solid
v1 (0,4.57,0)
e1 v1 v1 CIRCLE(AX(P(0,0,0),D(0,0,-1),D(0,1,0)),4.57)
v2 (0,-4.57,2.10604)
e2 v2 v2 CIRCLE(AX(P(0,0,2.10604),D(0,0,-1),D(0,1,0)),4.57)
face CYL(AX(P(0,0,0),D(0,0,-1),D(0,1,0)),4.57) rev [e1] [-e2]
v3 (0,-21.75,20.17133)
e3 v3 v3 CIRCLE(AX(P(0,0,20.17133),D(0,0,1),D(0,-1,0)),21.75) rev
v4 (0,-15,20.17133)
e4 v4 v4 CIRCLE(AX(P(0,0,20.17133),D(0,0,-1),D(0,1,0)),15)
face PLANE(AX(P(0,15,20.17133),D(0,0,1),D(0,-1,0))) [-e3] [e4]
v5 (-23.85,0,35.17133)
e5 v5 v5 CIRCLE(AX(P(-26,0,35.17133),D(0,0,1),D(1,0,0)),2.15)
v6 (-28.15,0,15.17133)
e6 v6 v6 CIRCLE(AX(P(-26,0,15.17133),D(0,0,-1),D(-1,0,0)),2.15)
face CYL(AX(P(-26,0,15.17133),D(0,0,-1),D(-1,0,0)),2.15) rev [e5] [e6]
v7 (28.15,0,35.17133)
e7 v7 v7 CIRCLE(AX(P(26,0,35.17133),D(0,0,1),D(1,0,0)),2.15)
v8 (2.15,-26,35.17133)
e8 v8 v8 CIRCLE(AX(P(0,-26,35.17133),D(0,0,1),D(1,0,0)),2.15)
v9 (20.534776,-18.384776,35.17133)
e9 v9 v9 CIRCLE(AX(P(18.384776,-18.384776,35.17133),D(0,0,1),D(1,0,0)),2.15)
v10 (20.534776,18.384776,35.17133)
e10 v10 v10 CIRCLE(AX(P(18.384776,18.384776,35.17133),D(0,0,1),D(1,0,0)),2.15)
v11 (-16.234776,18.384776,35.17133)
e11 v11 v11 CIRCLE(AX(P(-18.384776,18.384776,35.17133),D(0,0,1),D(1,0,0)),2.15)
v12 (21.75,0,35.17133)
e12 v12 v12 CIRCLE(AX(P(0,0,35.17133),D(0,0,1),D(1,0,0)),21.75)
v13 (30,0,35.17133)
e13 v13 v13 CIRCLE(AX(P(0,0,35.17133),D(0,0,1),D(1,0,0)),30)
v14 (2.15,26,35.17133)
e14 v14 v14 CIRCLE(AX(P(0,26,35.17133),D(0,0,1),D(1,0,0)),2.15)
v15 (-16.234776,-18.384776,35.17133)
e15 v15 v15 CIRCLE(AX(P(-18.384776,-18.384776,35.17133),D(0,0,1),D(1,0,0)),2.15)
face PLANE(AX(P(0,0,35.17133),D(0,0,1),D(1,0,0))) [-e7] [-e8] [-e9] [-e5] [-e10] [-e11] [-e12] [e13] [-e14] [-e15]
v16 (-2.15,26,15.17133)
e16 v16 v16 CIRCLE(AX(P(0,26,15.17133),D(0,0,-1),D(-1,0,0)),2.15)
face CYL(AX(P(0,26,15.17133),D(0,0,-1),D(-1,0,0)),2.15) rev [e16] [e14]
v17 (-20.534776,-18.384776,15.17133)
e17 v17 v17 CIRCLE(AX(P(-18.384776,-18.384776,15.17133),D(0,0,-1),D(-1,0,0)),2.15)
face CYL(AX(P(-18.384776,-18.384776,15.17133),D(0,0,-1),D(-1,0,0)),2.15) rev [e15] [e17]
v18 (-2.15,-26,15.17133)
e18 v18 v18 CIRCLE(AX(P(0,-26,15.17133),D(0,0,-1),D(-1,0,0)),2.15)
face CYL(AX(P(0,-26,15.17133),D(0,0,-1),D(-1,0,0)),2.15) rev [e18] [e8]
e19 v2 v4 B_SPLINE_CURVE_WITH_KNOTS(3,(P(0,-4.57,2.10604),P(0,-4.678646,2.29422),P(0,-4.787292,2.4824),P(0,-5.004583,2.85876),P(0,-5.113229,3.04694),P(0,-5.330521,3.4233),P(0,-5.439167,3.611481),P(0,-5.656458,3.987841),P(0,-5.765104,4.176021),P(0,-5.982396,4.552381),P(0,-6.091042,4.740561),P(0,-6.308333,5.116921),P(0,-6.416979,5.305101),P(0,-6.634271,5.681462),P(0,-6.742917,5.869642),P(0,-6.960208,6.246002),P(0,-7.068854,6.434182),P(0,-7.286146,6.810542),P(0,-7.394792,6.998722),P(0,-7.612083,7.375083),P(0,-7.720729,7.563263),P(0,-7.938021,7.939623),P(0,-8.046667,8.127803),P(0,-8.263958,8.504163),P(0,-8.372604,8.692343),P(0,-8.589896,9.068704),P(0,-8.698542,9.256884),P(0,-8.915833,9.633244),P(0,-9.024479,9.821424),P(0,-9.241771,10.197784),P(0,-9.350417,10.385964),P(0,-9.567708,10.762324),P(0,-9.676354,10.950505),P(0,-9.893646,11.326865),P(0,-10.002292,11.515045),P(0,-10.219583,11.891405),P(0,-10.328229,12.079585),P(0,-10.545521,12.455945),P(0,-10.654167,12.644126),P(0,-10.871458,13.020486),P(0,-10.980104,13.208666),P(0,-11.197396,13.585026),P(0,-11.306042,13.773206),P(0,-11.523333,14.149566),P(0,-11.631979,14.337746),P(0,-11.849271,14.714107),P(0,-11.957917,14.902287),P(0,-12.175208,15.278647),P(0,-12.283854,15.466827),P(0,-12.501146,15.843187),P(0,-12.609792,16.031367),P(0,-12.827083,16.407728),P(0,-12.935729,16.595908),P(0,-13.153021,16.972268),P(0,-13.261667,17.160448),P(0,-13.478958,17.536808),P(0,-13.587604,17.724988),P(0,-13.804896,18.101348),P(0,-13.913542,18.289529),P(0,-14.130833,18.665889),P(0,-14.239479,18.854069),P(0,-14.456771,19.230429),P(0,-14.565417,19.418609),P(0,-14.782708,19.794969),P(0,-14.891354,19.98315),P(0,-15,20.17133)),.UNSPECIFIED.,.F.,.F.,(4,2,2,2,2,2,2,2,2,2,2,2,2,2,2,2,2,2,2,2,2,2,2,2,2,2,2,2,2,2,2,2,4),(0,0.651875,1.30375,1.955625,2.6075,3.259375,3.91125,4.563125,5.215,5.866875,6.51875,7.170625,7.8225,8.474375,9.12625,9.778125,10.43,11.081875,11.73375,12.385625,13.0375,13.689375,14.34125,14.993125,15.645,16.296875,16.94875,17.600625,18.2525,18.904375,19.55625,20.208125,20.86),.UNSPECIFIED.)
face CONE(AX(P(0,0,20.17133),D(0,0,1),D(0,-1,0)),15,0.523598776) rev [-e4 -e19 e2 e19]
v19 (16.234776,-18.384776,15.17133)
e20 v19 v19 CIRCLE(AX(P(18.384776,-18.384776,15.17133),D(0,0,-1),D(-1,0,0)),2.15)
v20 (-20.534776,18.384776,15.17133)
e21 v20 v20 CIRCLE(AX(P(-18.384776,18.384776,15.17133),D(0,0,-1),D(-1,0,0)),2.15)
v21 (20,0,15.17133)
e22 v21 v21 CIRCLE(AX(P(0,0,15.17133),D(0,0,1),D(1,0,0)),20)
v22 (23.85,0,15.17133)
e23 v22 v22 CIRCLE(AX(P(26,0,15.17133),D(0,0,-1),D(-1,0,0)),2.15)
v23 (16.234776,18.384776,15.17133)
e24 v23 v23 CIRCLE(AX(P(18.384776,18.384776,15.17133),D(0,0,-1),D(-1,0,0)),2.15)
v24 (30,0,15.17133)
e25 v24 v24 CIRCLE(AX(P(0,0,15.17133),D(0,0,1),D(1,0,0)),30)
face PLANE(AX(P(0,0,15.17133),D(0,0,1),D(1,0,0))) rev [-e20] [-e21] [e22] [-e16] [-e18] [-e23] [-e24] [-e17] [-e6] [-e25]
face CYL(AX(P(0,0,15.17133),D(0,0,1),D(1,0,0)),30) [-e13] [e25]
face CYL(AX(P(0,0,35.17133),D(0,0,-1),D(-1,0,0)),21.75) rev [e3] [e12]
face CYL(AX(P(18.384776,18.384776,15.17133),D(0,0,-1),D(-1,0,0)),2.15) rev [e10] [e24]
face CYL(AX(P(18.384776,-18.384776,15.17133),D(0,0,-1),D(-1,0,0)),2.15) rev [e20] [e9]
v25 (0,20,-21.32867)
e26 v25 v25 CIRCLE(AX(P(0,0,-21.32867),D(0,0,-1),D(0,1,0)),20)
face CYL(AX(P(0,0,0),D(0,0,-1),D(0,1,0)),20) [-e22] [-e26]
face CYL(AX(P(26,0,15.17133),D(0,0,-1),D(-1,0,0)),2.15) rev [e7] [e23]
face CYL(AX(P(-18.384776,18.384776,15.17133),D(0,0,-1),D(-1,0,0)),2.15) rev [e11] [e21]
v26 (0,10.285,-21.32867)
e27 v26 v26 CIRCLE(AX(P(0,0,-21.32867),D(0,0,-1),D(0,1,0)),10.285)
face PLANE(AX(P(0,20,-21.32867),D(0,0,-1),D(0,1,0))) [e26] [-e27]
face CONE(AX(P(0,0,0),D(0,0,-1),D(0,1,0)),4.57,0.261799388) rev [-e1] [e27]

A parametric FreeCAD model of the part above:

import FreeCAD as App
import Part
import Sketcher

V = App.Vector
Q = App.Units.Quantity


def add_polygon(sketch, points):
    """Adds a closed chain of lines whose ends are joined by coincident constraints."""
    first, n = sketch.GeometryCount, len(points)
    for a, b in zip(points, points[1:] + points[:1]):
        sketch.addGeometry(Part.LineSegment(App.Vector(*a, 0), App.Vector(*b, 0)), False)
    for i in range(n):
        sketch.addConstraint(Sketcher.Constraint("Coincident", first + i, 2, first + (i + 1) % n, 1))

doc = App.newDocument("Part")
body = doc.addObject("PartDesign::Body", "Body")

# Sketch on YZ plane
sketch1 = doc.addObject("Sketcher::SketchObject", "Sketch")
body.addObject(sketch1)
sketch1.AttachmentSupport = (doc.YZ_Plane, [""])
sketch1.MapMode = "FlatFace"
add_polygon(sketch1, [(10.285, -21.32867), (20, -21.32867), (20, 20.17133), (15, 20.17133), (4.57, 2.10604), (4.57, 0)])  # lines 0-5
sketch1.addConstraint(Sketcher.Constraint("Horizontal", 0))
sketch1.addConstraint(Sketcher.Constraint("Vertical", 1))
sketch1.addConstraint(Sketcher.Constraint("Horizontal", 2))
sketch1.addConstraint(Sketcher.Constraint("Vertical", 4))
sketch1.addConstraint(Sketcher.Constraint("PointOnObject", 4, 2, -1))
sketch1.addConstraint(Sketcher.Constraint("DistanceX", 2, 2, 2, 1, Q("5 mm")))
sketch1.addConstraint(Sketcher.Constraint("Angle", 3, Q("-120 deg")))
sketch1.addConstraint(Sketcher.Constraint("Angle", 5, Q("-75 deg")))
sketch1.addConstraint(Sketcher.Constraint("DistanceY", 1, 1, 1, 2, Q("41.5 mm")))
sketch1.addConstraint(Sketcher.Constraint("DistanceX", -1, 1, 0, 2, Q("20 mm")))
sketch1.addConstraint(Sketcher.Constraint("Distance", 3, Q("20.86 mm")))
sketch1.addConstraint(Sketcher.Constraint("DistanceX", 0, 1, 0, 2, Q("9.715 mm")))
revolution = doc.addObject("PartDesign::Revolution", "Revolution")
body.addObject(revolution)
revolution.Profile = sketch1
revolution.ReferenceAxis = (sketch1, ["V_Axis"])
revolution.Angle = 360

# Sketch on XY plane
sketch2 = doc.addObject("Sketcher::SketchObject", "Sketch001")
body.addObject(sketch2)
sketch2.AttachmentSupport = (doc.XY_Plane, [""])
sketch2.MapMode = "FlatFace"
sketch2.AttachmentOffset = App.Placement(V(0, 0, 15.17133), App.Rotation())
sketch2.addGeometry(Part.Circle(V(0, 0, 0), V(0, 0, 1), 30), False)
sketch2.addGeometry(Part.Circle(V(0, 0, 0), V(0, 0, 1), 20), False)
sketch2.addConstraint(Sketcher.Constraint("Coincident", 0, 3, -1, 1))
sketch2.addConstraint(Sketcher.Constraint("Coincident", 1, 3, -1, 1))
sketch2.addConstraint(Sketcher.Constraint("Diameter", 0, Q("60 mm")))
sketch2.addConstraint(Sketcher.Constraint("Diameter", 1, Q("40 mm")))
pad1 = doc.addObject("PartDesign::Pad", "Pad")
body.addObject(pad1)
pad1.Profile = sketch2
pad1.Length = 5

# Sketch on XY plane
sketch3 = doc.addObject("Sketcher::SketchObject", "Sketch002")
body.addObject(sketch3)
sketch3.AttachmentSupport = (doc.XY_Plane, [""])
sketch3.MapMode = "FlatFace"
sketch3.AttachmentOffset = App.Placement(V(0, 0, 20.17133), App.Rotation())
sketch3.addGeometry(Part.Circle(V(0, 0, 0), V(0, 0, 1), 30), False)
sketch3.addGeometry(Part.Circle(V(0, 0, 0), V(0, 0, 1), 21.75), False)
sketch3.addConstraint(Sketcher.Constraint("Coincident", 0, 3, -1, 1))
sketch3.addConstraint(Sketcher.Constraint("Coincident", 1, 3, -1, 1))
sketch3.addConstraint(Sketcher.Constraint("Diameter", 0, Q("60 mm")))
sketch3.addConstraint(Sketcher.Constraint("Diameter", 1, Q("43.5 mm")))
pad2 = doc.addObject("PartDesign::Pad", "Pad001")
body.addObject(pad2)
pad2.Profile = sketch3
pad2.Length = 15

# Sketch on XY plane
sketch4 = doc.addObject("Sketcher::SketchObject", "Sketch003")
body.addObject(sketch4)
sketch4.AttachmentSupport = (doc.XY_Plane, [""])
sketch4.MapMode = "FlatFace"
sketch4.AttachmentOffset = App.Placement(V(0, 0, 15.17133), App.Rotation())
sketch4.addGeometry(Part.Circle(V(0, 26, 0), V(0, 0, 1), 2.15), False)
sketch4.addConstraint(Sketcher.Constraint("PointOnObject", 0, 3, -2))
sketch4.addConstraint(Sketcher.Constraint("Diameter", 0, Q("4.3 mm")))
sketch4.addConstraint(Sketcher.Constraint("DistanceY", -1, 1, 0, 3, Q("26 mm")))
doc.recompute()
hole = doc.addObject("PartDesign::Hole", "Hole")
body.addObject(hole)
hole.Profile = sketch4
hole.ThreadType = "None"
hole.Diameter = 4.3
hole.DepthType = "ThroughAll"
hole.Reversed = True
doc.recompute()

polarpattern = doc.addObject("PartDesign::PolarPattern", "PolarPattern")
body.addObject(polarpattern)
polarpattern.Originals = [hole]
polarpattern.Axis = (doc.Z_Axis, [""])
polarpattern.Angle = 360
polarpattern.Occurrences = 8
body.Tip = polarpattern

doc.recompute()
